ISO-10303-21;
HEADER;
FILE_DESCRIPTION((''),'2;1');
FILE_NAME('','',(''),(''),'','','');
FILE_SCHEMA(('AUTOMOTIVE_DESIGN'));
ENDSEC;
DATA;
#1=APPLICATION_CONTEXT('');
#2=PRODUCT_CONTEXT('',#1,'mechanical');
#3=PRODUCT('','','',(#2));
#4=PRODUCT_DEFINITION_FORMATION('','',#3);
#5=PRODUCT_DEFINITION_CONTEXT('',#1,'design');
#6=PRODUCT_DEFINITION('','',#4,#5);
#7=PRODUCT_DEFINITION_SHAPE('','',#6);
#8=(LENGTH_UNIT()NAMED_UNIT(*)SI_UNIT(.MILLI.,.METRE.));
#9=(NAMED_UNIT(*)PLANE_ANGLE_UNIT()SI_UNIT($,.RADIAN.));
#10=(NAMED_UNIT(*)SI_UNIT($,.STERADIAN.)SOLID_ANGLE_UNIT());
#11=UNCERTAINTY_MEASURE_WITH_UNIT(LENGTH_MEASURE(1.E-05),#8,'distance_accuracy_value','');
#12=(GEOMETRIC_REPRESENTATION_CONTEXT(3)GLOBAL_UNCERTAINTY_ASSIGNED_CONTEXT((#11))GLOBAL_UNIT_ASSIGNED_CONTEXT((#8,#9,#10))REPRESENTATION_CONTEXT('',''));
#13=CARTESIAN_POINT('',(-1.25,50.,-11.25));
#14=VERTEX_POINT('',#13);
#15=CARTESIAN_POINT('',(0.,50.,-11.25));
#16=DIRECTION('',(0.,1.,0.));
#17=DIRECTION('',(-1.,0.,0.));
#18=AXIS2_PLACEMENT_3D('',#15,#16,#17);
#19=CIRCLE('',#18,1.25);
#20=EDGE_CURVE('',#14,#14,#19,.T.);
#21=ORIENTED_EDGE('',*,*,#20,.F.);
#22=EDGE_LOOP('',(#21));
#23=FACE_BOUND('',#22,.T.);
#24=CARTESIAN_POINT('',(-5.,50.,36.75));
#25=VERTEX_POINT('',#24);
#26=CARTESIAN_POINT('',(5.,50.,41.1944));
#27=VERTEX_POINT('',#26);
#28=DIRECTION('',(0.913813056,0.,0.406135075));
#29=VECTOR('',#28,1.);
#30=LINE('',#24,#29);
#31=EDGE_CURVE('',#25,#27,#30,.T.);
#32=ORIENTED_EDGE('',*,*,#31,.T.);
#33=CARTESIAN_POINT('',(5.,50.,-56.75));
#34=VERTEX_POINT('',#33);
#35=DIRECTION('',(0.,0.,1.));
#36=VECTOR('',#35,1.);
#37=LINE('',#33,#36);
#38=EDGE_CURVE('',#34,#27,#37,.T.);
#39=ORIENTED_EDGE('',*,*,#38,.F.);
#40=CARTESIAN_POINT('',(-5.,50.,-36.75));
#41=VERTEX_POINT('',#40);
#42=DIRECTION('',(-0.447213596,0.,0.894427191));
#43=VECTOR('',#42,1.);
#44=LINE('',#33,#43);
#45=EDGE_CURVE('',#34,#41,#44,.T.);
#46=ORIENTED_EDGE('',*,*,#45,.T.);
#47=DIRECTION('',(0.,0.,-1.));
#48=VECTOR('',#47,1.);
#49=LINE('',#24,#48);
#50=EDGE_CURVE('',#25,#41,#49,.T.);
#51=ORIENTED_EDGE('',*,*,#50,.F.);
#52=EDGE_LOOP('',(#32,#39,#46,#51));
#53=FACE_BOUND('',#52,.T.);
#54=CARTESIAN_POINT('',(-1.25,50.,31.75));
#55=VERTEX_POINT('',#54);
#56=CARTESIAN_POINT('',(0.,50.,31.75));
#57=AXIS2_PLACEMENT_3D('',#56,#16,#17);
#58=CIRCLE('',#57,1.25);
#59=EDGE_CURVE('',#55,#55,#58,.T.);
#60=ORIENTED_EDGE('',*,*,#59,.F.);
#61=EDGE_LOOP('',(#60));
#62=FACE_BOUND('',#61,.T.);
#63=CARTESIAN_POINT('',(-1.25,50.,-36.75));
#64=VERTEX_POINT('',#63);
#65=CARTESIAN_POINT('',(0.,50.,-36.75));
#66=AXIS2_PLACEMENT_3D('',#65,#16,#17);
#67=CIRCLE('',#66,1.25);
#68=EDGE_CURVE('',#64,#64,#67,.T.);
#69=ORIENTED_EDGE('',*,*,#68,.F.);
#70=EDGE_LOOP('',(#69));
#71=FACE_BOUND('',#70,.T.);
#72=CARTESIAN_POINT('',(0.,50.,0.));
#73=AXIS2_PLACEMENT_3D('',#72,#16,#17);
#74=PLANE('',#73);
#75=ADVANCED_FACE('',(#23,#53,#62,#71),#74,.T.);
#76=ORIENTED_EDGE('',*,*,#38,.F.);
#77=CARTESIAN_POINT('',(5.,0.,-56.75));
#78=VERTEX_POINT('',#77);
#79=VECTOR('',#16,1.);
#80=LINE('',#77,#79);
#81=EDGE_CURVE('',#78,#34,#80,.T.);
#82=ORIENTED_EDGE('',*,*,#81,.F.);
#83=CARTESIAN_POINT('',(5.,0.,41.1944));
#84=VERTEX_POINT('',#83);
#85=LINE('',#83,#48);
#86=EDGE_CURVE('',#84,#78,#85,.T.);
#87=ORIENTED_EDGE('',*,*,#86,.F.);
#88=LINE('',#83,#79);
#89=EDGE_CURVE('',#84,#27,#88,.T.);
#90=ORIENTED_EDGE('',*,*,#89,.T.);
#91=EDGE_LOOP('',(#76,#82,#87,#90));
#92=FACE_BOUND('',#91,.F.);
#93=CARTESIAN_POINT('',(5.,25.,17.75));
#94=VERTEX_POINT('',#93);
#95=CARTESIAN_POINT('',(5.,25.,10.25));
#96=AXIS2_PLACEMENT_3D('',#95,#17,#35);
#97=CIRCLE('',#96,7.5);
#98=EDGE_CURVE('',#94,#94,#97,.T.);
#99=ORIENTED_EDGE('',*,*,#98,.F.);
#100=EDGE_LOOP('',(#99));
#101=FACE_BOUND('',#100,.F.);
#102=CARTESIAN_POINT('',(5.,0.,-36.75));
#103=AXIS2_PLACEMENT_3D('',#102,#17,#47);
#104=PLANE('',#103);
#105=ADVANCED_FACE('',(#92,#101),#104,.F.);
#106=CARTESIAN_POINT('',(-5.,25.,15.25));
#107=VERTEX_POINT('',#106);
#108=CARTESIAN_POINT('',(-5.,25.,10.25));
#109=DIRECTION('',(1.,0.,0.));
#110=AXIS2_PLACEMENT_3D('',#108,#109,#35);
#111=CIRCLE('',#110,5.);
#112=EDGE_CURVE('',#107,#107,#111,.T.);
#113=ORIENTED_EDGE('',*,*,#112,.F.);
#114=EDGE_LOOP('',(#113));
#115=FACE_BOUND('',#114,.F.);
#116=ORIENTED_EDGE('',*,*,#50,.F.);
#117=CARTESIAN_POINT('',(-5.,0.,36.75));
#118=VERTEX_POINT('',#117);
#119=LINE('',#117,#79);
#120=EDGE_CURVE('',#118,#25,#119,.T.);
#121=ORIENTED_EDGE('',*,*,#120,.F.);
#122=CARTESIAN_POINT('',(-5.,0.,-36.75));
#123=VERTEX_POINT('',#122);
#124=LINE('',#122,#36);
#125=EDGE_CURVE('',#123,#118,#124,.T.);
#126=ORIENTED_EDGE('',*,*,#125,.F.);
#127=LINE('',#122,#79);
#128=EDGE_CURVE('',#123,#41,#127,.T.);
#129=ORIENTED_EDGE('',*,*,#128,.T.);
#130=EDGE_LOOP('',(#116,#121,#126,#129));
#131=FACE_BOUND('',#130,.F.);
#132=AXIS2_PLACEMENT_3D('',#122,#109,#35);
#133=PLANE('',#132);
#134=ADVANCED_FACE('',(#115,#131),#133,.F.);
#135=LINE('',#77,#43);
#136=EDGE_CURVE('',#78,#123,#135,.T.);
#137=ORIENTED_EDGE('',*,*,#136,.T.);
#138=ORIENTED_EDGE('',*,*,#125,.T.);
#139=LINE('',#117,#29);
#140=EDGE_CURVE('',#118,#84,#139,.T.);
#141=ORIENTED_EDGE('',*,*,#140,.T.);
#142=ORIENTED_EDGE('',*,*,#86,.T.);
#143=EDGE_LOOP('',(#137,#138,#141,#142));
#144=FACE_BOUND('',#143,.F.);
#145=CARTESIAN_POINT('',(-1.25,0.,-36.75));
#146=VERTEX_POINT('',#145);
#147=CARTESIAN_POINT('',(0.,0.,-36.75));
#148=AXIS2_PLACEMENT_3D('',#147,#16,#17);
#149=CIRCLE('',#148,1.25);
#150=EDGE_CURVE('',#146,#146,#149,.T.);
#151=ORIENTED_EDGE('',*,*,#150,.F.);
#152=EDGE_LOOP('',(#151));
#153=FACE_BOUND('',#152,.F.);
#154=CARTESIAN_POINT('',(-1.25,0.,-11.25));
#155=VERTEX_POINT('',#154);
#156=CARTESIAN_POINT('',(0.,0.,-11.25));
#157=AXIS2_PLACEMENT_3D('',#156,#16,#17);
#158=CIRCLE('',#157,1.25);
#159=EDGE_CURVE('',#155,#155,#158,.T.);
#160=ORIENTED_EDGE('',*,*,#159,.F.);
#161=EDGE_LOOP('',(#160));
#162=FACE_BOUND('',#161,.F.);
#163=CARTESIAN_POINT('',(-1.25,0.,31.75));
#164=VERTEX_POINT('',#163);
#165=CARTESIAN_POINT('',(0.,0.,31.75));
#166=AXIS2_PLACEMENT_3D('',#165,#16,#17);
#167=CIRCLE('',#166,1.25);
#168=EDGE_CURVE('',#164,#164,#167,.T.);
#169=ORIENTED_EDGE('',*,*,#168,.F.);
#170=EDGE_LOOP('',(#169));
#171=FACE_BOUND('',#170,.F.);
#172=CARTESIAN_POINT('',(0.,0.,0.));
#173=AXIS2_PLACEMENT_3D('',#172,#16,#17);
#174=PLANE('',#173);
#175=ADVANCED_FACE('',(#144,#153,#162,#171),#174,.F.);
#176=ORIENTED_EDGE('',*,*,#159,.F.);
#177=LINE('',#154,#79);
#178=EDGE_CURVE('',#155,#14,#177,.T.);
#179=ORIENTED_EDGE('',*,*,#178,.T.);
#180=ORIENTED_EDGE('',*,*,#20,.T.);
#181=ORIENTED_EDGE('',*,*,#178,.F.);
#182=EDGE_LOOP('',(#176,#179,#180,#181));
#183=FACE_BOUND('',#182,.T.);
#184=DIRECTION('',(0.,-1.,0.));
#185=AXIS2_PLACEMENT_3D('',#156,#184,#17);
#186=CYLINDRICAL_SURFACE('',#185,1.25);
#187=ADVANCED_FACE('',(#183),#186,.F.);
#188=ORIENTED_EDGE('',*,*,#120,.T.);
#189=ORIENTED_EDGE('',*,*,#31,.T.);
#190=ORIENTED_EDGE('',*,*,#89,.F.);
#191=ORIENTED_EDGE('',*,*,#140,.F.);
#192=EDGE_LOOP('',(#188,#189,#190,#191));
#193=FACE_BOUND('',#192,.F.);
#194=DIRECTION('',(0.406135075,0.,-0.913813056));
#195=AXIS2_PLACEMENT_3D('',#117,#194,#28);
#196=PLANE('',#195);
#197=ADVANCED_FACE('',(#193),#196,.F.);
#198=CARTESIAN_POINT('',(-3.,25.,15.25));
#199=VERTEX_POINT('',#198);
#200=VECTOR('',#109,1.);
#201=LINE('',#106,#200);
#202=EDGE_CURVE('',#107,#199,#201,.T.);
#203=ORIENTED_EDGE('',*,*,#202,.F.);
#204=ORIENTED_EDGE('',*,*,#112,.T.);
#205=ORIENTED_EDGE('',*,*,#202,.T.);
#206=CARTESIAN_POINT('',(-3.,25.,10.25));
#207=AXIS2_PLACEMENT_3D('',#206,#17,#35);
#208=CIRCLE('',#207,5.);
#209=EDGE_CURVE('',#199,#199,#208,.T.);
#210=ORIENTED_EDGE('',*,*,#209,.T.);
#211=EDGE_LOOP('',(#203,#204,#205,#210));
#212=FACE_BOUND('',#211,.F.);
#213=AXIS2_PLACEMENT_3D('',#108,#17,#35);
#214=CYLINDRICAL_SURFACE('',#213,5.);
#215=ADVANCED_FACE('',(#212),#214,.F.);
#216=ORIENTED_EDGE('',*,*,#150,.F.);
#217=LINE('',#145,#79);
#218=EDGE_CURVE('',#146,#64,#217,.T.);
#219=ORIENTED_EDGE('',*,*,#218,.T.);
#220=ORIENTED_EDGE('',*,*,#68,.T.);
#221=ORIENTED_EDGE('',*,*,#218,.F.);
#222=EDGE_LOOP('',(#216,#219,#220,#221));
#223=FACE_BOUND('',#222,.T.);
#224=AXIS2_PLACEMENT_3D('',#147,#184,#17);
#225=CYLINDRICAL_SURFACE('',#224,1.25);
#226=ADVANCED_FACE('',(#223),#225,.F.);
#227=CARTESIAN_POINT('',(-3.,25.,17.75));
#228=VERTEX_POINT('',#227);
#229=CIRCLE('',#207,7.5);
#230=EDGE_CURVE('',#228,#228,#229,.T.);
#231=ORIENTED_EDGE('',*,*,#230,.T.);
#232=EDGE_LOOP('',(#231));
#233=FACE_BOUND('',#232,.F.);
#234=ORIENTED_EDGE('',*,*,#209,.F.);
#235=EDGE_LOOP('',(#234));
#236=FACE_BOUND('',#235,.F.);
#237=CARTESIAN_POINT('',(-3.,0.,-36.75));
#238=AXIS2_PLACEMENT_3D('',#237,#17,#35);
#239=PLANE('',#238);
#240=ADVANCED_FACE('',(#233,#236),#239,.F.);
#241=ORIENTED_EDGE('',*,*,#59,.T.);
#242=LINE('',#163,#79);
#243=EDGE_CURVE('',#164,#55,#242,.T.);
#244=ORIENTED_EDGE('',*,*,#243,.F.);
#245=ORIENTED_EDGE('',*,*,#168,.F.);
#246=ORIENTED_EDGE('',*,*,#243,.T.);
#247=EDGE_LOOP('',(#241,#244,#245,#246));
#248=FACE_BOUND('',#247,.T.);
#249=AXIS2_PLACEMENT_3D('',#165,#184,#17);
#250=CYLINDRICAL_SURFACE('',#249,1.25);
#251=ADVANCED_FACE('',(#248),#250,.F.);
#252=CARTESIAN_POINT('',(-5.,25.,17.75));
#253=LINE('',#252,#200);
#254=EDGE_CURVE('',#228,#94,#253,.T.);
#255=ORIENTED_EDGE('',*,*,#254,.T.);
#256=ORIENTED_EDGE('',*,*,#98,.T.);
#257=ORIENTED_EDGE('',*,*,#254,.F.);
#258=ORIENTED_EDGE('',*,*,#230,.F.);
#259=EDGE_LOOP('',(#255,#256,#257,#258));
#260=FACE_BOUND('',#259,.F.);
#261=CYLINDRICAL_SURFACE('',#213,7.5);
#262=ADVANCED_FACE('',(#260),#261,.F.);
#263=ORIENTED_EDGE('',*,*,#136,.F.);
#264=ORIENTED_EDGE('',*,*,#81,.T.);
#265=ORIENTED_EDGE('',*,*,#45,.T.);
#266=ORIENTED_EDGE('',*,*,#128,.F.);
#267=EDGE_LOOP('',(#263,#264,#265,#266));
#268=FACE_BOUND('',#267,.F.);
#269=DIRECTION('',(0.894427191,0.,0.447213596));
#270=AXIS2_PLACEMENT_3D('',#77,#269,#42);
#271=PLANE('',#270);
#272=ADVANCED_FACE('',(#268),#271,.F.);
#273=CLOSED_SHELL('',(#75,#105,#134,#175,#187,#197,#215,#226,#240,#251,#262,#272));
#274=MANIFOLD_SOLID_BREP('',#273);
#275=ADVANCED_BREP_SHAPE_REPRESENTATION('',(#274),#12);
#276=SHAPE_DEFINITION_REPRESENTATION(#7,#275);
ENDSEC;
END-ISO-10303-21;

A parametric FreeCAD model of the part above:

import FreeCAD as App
import Part
import Sketcher

V = App.Vector
Q = App.Units.Quantity


def add_polygon(sketch, points):
    """Adds a closed chain of lines whose ends are joined by coincident constraints."""
    first, n = sketch.GeometryCount, len(points)
    for a, b in zip(points, points[1:] + points[:1]):
        sketch.addGeometry(Part.LineSegment(App.Vector(*a, 0), App.Vector(*b, 0)), False)
    for i in range(n):
        sketch.addConstraint(Sketcher.Constraint("Coincident", first + i, 2, first + (i + 1) % n, 1))

doc = App.newDocument("Part")
body = doc.addObject("PartDesign::Body", "Body")

# Sketch on XZ plane
sketch1 = body.newObject("Sketcher::SketchObject", "Sketch")
sketch1.AttachmentSupport = (doc.getObject("XZ_Plane"), [""])
sketch1.MapMode = "FlatFace"
add_polygon(sketch1, [(5, -56.8), (-5, -36.8), (-5, 36.8), (5, 41.2)])  # lines 0-3
sketch1.addGeometry(Part.Circle(V(0, -36.8, 0), V(0, 0, 1), 1.2), False)  # 4
sketch1.addGeometry(Part.Circle(V(0, -11.2, 0), V(0, 0, 1), 1.2), False)  # 5
sketch1.addGeometry(Part.Circle(V(0, 31.8, 0), V(0, 0, 1), 1.2), False)  # 6
sketch1.addConstraint([
    Sketcher.Constraint("Vertical", 1),
    Sketcher.Constraint("Vertical", 3),
    Sketcher.Constraint("Equal", 4, 5),
    Sketcher.Constraint("Equal", 5, 6),
    Sketcher.Constraint("PointOnObject", 4, 3, -2),
    Sketcher.Constraint("PointOnObject", 5, 3, -2),
    Sketcher.Constraint("PointOnObject", 6, 3, -2),
    Sketcher.Constraint("Horizontal", 4, 3, 0, 2),
    Sketcher.Constraint("Diameter", 4, Q("2.5 mm")),
    Sketcher.Constraint("DistanceY", 1, 1, 1, 2, Q("73.5 mm")),
    Sketcher.Constraint("DistanceX", 1, 2, 2, 2, Q("10 mm")),
    Sketcher.Constraint("DistanceY", 3, 2, 4, 3, Q("20 mm")),
    Sketcher.Constraint("DistanceX", 0, 2, -1, 1, Q("5 mm")),
    Sketcher.Constraint("DistanceY", 5, 3, 6, 3, Q("43 mm")),
    Sketcher.Constraint("DistanceY", 6, 3, 1, 2, Q("5 mm")),
    Sketcher.Constraint("DistanceY", 1, 2, 2, 2, Q("4.4444 mm")),
    Sketcher.Constraint("DistanceY", 4, 3, -1, 1, Q("36.75 mm")),
])
pad1 = body.newObject("PartDesign::Pad", "Pad")
pad1.Profile = sketch1
pad1.Length = 50
pad1.Reversed = True

# Sketch on YZ plane
sketch2 = body.newObject("Sketcher::SketchObject", "Sketch001")
sketch2.AttachmentSupport = (doc.getObject("YZ_Plane"), [""])
sketch2.MapMode = "FlatFace"
sketch2.AttachmentOffset = App.Placement(V(0, 0, -5), App.Rotation())
sketch2.addGeometry(Part.Circle(V(25, 10, 0), V(0, 0, 1), 8), False)
sketch2.addConstraint([
    Sketcher.Constraint("Diameter", 0, Q("15 mm")),
    Sketcher.Constraint("DistanceX", -1, 1, 0, 3, Q("25 mm")),
    Sketcher.Constraint("DistanceY", -1, 1, 0, 3, Q("10.25 mm")),
])
pocket1 = body.newObject("PartDesign::Pocket", "Pocket")
pocket1.Profile = sketch2
pocket1.Length = 10
pocket1.Reversed = True

# Sketch on YZ plane
sketch3 = body.newObject("Sketcher::SketchObject", "Sketch002")
sketch3.AttachmentSupport = (doc.getObject("YZ_Plane"), [""])
sketch3.MapMode = "FlatFace"
sketch3.AttachmentOffset = App.Placement(V(0, 0, -5), App.Rotation())
sketch3.addGeometry([
    Part.Circle(V(25, 10, 0), V(0, 0, 1), 8),
    Part.Circle(V(25, 10, 0), V(0, 0, 1), 5),
], False)
sketch3.addConstraint([
    Sketcher.Constraint("Coincident", 1, 3, 0, 3),
    Sketcher.Constraint("Diameter", 0, Q("15 mm")),
    Sketcher.Constraint("Diameter", 1, Q("10 mm")),
    Sketcher.Constraint("DistanceX", -1, 1, 0, 3, Q("25 mm")),
    Sketcher.Constraint("DistanceY", -1, 1, 0, 3, Q("10.25 mm")),
])
pad2 = body.newObject("PartDesign::Pad", "Pad001")
pad2.Profile = sketch3
pad2.Length = 2

doc.recompute()
